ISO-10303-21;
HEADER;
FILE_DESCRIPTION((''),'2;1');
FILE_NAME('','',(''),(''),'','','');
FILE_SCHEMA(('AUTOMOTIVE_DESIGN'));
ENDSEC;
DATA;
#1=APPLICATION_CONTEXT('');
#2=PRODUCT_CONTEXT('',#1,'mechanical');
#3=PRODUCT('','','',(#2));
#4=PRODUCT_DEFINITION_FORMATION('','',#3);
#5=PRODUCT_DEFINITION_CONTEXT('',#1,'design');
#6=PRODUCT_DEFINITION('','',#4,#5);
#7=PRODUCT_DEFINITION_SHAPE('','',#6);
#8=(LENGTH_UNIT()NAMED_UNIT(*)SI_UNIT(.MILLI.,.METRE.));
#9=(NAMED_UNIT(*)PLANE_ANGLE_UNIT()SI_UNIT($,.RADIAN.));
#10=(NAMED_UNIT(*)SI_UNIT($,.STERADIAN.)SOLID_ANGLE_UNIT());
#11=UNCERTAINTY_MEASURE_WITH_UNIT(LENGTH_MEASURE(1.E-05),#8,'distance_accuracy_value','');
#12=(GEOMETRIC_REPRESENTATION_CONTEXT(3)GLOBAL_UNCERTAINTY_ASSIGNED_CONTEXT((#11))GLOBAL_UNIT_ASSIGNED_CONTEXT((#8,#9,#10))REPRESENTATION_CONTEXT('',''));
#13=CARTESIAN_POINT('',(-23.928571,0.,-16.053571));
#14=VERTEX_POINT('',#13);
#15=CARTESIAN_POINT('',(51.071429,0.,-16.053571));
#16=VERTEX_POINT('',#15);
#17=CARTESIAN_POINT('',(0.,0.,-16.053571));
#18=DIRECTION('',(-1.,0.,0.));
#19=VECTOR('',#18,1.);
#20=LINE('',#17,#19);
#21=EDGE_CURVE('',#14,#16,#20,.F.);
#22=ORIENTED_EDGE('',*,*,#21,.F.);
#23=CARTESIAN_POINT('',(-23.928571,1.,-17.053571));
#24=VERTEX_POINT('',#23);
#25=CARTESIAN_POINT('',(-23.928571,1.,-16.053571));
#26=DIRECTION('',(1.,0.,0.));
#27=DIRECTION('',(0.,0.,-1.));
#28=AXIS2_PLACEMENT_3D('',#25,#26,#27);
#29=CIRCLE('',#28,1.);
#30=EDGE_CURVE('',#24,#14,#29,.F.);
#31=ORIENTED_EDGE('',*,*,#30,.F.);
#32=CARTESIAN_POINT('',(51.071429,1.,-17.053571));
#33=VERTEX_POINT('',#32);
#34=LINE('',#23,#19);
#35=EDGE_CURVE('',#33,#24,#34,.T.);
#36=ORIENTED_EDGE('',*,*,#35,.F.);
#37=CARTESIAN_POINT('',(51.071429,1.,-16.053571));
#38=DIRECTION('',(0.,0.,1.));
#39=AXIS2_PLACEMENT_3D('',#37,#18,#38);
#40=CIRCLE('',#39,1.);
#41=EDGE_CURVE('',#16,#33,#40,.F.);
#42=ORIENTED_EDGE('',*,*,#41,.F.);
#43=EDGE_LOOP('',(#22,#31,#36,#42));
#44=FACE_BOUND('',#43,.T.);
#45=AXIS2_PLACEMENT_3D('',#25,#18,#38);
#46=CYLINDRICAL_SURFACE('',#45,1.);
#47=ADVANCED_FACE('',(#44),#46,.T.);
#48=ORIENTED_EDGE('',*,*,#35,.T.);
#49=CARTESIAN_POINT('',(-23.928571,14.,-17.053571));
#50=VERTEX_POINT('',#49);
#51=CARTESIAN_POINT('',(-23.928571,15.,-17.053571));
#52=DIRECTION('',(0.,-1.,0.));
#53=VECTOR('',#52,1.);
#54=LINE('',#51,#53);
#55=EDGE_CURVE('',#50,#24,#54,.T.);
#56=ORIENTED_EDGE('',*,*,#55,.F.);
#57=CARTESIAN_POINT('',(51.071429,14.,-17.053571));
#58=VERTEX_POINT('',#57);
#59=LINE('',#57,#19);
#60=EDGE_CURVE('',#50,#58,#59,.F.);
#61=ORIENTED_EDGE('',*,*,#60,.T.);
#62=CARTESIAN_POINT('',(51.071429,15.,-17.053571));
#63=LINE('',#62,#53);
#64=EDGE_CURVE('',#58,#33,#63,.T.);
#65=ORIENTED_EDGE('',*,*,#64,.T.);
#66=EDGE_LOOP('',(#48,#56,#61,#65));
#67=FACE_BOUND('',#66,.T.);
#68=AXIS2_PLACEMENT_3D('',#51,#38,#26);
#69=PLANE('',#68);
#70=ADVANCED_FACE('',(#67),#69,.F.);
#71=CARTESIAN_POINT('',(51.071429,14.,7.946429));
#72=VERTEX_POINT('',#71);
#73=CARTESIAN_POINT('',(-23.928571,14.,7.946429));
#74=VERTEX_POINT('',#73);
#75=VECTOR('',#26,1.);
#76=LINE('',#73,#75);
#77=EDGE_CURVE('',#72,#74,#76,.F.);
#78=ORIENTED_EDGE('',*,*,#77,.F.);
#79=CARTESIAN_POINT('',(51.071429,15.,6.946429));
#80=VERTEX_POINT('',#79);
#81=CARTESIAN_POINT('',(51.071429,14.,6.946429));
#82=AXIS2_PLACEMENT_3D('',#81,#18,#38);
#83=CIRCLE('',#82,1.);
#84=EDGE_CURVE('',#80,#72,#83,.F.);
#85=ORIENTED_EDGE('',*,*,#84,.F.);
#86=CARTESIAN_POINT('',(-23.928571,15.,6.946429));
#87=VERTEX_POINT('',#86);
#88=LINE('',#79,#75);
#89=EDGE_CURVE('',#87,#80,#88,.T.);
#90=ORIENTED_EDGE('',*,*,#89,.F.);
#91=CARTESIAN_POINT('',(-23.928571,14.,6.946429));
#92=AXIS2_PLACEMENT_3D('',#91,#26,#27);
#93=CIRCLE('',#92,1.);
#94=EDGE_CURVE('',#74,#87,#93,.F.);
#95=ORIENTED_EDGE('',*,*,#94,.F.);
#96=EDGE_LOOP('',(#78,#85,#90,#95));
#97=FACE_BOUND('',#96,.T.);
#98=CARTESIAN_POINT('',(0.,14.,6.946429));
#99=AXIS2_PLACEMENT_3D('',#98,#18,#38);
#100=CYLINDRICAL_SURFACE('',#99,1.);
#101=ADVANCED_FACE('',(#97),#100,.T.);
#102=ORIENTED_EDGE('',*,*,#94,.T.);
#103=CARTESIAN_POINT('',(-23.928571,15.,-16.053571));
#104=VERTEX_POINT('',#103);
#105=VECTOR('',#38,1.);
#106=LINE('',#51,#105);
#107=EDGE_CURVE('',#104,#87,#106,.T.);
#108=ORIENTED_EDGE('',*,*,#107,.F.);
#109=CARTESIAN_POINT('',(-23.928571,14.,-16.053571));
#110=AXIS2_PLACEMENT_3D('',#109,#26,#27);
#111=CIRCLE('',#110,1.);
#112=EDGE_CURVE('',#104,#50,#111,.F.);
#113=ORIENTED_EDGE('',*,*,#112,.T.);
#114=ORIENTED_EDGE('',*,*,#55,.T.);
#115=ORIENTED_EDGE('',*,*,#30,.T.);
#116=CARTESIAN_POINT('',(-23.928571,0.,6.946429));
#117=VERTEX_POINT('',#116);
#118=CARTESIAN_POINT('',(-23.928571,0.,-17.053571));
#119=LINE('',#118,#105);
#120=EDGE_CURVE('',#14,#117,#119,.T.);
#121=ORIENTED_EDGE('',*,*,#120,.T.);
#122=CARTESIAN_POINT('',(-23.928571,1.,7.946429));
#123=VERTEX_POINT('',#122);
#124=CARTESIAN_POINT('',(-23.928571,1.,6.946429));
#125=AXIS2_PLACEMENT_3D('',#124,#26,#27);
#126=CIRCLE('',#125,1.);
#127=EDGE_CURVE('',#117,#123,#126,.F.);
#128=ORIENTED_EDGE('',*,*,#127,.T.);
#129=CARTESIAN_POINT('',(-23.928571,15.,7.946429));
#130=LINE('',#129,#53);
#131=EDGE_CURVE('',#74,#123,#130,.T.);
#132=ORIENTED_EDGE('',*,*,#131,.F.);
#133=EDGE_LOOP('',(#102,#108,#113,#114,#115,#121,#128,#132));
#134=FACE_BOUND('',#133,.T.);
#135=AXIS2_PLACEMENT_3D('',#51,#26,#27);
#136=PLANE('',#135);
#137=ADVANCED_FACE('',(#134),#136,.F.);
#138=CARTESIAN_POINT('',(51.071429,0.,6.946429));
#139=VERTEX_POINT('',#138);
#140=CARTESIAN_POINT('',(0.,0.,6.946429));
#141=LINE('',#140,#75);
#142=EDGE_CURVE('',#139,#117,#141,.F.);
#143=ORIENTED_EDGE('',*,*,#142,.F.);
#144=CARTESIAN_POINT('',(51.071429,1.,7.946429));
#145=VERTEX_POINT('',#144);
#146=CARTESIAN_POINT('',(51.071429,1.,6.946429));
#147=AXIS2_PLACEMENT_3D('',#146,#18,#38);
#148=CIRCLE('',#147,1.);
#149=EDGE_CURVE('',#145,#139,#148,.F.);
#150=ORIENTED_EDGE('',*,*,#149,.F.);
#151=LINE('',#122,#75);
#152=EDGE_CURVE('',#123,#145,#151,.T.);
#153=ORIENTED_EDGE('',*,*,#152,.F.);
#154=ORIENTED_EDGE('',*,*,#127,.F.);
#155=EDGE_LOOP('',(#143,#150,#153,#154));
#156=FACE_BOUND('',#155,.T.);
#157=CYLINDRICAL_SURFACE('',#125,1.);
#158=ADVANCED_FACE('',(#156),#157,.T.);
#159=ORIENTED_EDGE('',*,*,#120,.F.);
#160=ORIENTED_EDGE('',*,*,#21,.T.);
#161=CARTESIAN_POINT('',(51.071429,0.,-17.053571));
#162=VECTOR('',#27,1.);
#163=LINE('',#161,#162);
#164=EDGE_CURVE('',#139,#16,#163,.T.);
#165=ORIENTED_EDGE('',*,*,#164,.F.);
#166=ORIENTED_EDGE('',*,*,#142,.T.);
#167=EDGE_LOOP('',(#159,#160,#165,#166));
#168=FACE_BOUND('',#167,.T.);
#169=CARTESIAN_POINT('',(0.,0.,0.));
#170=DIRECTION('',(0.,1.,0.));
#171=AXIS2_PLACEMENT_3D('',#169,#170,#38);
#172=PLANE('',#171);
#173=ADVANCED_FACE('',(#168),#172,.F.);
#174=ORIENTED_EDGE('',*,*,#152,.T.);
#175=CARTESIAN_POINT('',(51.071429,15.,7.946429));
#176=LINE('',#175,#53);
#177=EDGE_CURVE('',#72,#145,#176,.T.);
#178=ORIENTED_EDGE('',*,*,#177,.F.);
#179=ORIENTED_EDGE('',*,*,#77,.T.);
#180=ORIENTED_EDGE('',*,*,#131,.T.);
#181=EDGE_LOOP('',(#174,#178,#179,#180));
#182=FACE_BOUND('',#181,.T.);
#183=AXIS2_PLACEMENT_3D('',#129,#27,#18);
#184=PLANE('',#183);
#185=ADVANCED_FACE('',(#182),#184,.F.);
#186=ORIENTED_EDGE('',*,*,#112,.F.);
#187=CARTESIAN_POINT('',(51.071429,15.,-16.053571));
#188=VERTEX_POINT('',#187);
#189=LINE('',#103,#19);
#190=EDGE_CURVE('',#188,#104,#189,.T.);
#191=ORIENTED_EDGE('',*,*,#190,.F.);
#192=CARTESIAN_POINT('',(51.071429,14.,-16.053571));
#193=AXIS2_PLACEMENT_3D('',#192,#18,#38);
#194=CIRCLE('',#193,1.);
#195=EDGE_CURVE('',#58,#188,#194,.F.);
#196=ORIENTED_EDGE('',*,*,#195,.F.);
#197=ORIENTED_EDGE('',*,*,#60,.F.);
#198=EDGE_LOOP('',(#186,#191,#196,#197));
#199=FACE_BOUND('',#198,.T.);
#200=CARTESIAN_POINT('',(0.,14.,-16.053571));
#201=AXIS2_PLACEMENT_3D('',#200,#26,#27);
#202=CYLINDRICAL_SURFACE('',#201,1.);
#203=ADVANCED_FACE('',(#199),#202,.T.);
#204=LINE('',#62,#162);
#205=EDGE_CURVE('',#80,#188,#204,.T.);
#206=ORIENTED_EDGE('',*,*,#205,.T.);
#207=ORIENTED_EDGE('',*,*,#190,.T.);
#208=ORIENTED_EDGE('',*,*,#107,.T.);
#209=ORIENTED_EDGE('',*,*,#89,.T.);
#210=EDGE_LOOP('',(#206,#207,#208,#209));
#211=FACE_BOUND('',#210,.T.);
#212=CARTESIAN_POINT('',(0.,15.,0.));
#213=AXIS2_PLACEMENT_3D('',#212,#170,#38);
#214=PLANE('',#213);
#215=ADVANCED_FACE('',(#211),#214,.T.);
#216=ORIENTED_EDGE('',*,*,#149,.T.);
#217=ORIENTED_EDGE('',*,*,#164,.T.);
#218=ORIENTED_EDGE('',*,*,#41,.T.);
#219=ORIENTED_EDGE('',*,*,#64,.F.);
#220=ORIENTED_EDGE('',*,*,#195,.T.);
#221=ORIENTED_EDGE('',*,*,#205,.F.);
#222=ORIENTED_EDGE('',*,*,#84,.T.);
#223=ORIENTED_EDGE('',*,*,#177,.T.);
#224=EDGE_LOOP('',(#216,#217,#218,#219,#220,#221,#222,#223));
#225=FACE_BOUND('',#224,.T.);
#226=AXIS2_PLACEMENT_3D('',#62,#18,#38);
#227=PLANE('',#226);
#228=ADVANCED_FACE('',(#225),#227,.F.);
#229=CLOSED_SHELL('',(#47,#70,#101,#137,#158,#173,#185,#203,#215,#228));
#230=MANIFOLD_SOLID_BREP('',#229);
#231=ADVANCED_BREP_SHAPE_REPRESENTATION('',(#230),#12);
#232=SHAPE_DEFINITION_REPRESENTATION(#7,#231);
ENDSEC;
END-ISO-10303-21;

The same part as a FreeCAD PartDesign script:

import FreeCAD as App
import Part
import Sketcher
from FreeCAD import Vector


def edges_at(feature, points):
    """Names of the edges that pass closest to the given points."""
    edges = feature.Shape.Edges
    near = lambda p: min(range(len(edges)), key=lambda i: edges[i].distToShape(Part.Vertex(*p))[0])
    return sorted({f"Edge{near(p) + 1}" for p in points})

doc = App.newDocument("Part")
body = doc.addObject("PartDesign::Body", "Body")

# Sketch on XZ plane
sketch1 = body.newObject("Sketcher::SketchObject", "Sketch")
sketch1.AttachmentSupport = (doc.getObject("XZ_Plane"), [""])
sketch1.MapMode = "FlatFace"
sketch1.addGeometry([
    Part.LineSegment(Vector(-23.928571, -17.053571, 0), Vector(-23.928571, 7.946429, 0)),
    Part.LineSegment(Vector(-23.928571, 7.946429, 0), Vector(51.071429, 7.946429, 0)),
    Part.LineSegment(Vector(51.071429, 7.946429, 0), Vector(51.071429, -17.053571, 0)),
    Part.LineSegment(Vector(51.071429, -17.053571, 0), Vector(-23.928571, -17.053571, 0)),
], False)
sketch1.addConstraint([
    Sketcher.Constraint("Coincident", 0, 2, 1, 1),
    Sketcher.Constraint("Coincident", 1, 2, 2, 1),
    Sketcher.Constraint("Coincident", 2, 2, 3, 1),
    Sketcher.Constraint("Coincident", 3, 2, 0, 1),
    Sketcher.Constraint("Vertical", 0),
    Sketcher.Constraint("Horizontal", 1),
    Sketcher.Constraint("Vertical", 2),
    Sketcher.Constraint("Horizontal", 3),
    Sketcher.Constraint("DistanceX", 1, 1, 1, 2, 75.0),
    Sketcher.Constraint("DistanceY", 0, 1, 0, 2, 25.0),
    Sketcher.Constraint("DistanceX", 0, 2, -1, 1, 23.928571),
    Sketcher.Constraint("DistanceY", -1, 1, 0, 2, 7.946429),
])
pad1 = body.newObject("PartDesign::Pad", "Pad")
pad1.Profile = sketch1
pad1.Length = 15
pad1.Reversed = True
doc.recompute()

fillet = body.newObject("PartDesign::Fillet", "Fillet")
fillet.Base = (pad1, edges_at(pad1, [
    (13.571, 15, -17.054),
    (13.571, 0, -17.054),
    (13.571, 0, 7.946),
    (13.571, 15, 7.946),
]))
fillet.Radius = 1

doc.recompute()
